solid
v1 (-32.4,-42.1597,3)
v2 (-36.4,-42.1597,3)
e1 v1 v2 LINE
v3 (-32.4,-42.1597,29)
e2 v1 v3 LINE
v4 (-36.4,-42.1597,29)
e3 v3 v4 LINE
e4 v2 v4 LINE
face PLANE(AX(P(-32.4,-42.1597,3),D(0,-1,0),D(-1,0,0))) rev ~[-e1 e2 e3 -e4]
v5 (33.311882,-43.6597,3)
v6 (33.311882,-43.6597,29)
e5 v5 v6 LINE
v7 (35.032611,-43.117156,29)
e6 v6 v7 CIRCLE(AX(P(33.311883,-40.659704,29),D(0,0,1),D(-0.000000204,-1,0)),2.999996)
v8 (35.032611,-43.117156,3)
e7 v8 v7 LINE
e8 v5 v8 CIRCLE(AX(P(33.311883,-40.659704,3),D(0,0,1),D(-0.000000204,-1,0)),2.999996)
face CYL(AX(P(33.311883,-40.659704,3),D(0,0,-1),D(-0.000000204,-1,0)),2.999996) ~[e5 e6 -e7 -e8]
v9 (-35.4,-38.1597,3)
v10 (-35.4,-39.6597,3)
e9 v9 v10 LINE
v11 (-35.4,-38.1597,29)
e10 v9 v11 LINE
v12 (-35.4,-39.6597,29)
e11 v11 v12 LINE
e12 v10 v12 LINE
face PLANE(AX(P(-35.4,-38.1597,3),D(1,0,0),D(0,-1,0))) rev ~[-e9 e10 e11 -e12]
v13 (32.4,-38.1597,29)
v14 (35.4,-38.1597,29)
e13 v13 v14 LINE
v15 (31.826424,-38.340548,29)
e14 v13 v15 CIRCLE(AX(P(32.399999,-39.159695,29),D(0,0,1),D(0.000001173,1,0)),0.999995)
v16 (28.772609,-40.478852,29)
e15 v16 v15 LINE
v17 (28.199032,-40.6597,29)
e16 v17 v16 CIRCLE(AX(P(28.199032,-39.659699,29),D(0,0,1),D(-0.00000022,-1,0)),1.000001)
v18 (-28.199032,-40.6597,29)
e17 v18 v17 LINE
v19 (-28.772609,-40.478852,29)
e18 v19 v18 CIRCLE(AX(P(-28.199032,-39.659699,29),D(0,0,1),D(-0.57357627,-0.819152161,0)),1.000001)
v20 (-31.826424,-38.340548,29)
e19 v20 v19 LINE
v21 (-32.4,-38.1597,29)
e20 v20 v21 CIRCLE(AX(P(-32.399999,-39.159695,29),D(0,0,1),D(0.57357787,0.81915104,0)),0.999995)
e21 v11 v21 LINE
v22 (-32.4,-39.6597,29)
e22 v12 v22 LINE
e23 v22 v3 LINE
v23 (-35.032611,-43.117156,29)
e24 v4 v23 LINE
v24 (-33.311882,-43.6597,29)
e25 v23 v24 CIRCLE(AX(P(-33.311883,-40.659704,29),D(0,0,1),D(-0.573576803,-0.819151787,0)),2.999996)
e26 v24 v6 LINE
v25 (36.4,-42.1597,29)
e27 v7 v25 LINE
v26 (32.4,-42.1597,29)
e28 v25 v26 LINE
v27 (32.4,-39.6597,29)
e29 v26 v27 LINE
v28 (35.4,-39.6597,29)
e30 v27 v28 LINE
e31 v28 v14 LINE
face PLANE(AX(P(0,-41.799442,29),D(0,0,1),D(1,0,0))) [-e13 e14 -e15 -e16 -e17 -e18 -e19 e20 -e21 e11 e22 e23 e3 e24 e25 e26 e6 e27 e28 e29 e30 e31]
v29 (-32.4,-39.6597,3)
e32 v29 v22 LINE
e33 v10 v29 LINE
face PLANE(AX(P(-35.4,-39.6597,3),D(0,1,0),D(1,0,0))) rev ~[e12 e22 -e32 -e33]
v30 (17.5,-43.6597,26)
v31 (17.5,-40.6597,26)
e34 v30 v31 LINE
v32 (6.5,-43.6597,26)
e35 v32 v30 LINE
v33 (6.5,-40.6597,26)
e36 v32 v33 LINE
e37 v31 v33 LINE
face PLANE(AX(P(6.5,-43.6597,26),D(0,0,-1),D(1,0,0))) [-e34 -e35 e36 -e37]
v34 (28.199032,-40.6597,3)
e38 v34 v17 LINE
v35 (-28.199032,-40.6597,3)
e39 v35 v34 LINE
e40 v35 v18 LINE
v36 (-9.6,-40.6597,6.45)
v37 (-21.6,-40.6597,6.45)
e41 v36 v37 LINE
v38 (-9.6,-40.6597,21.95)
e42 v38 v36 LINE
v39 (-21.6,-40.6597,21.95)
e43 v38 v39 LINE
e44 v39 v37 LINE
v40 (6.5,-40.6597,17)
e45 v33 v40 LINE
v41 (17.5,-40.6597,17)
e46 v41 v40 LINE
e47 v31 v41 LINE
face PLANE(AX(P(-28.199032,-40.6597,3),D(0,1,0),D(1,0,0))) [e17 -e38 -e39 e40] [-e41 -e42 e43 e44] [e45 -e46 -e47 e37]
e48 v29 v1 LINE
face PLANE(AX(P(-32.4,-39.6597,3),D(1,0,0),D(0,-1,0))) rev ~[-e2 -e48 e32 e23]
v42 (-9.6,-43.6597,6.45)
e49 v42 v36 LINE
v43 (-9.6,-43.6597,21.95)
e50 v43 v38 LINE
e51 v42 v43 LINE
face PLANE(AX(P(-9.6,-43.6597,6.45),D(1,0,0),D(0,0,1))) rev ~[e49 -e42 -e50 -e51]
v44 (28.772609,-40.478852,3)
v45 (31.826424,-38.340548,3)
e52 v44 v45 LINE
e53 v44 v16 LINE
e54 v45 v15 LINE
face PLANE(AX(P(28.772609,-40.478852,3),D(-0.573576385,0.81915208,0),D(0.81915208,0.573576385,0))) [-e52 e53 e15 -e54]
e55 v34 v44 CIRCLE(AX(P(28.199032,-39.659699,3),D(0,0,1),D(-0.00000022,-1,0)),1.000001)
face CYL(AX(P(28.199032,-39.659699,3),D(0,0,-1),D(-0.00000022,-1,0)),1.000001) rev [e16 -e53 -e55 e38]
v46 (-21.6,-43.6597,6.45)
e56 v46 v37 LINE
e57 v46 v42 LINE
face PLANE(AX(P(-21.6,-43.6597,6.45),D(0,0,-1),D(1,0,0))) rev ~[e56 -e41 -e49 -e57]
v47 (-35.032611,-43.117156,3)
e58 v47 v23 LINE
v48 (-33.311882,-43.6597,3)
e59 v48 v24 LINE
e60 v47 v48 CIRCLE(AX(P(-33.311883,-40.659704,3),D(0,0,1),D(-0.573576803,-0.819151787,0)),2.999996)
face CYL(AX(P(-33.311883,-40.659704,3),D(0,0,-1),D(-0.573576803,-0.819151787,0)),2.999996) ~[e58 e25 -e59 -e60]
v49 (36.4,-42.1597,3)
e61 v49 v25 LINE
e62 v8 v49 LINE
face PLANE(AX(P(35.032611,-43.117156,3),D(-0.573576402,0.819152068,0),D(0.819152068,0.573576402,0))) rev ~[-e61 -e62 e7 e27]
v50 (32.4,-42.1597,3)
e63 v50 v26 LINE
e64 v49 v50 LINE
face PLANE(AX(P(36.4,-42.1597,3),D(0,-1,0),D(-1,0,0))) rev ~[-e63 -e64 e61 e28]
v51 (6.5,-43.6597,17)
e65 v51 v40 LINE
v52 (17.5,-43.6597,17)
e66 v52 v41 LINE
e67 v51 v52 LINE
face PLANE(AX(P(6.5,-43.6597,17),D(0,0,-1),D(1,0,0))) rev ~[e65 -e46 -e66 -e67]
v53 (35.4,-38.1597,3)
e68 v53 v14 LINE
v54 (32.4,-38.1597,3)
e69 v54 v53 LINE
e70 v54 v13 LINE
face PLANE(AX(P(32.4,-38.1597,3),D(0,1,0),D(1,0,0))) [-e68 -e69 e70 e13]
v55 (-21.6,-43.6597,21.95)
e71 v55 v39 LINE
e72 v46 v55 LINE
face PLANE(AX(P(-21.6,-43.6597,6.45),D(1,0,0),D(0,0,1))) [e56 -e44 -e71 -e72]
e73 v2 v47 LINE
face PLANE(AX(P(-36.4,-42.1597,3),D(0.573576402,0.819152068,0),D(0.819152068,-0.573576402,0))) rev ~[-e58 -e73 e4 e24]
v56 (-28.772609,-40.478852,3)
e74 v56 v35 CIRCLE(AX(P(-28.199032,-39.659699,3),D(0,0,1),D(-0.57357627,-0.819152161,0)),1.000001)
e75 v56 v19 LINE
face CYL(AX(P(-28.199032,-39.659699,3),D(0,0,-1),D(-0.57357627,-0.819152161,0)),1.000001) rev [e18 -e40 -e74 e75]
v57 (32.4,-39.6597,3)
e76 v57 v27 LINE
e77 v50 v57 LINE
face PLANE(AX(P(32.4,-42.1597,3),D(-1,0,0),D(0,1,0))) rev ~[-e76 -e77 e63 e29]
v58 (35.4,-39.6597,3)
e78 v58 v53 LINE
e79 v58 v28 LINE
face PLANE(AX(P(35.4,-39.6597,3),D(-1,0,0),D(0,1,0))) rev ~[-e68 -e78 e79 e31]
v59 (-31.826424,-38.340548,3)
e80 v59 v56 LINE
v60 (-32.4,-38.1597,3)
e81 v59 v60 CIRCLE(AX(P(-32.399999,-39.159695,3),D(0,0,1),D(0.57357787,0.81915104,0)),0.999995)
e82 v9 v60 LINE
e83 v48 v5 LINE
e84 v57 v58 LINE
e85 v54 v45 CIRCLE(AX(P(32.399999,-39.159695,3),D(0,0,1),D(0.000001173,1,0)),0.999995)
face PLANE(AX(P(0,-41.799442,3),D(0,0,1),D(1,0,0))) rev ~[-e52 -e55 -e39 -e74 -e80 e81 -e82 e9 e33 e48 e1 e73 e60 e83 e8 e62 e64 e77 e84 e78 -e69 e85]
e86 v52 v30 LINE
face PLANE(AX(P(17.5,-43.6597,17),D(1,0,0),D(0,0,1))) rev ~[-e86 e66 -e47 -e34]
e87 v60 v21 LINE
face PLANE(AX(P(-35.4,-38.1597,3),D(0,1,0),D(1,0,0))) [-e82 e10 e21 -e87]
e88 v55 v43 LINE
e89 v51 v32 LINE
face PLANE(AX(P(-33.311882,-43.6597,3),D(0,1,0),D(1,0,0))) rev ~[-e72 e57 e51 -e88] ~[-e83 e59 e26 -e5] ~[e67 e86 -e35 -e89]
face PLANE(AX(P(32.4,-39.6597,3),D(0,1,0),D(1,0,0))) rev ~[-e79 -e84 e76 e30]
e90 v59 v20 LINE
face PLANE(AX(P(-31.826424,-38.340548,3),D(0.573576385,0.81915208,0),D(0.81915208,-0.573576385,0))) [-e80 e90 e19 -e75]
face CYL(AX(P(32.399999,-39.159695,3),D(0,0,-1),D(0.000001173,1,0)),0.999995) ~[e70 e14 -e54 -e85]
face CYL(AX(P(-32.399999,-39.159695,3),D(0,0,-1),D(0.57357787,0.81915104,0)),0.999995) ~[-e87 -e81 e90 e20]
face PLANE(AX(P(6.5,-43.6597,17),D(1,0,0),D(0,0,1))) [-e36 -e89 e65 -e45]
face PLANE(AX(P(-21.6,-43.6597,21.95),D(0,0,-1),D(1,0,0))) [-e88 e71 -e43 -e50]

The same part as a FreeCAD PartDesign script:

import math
import FreeCAD as App
import Part
import Sketcher
Q = App.Units.Quantity

doc = App.newDocument("Part")
body = doc.addObject("PartDesign::Body", "Body")

sketch1 = doc.addObject("Sketcher::SketchObject", "Sketch")
body.addObject(sketch1)
sketch1.AttachmentSupport = (doc.XY_Plane, [""])
sketch1.MapMode = "FlatFace"
sketch1.AttachmentOffset = App.Placement(App.Vector(0, 0, 3), App.Rotation())
sketch1.addGeometry([
    Part.LineSegment(App.Vector(-35.4, -39.7, 0), App.Vector(-32.4, -39.7, 0)),
    Part.LineSegment(App.Vector(-32.4, -39.7, 0), App.Vector(-32.4, -42.2, 0)),
    Part.LineSegment(App.Vector(-32.4, -42.2, 0), App.Vector(-36.4, -42.2, 0)),
    Part.LineSegment(App.Vector(-36.4, -42.2, 0), App.Vector(-35, -43.1, 0)),
    Part.ArcOfCircle(Part.Circle(App.Vector(-33.3, -40.7, 0), App.Vector(0, 0, 1), 3), math.radians(-125), math.radians(-90)),
    Part.LineSegment(App.Vector(-33.3, -43.7, 0), App.Vector(33.3, -43.7, 0)),
    Part.ArcOfCircle(Part.Circle(App.Vector(33.3, -40.7, 0), App.Vector(0, 0, 1), 3), math.radians(-90), math.radians(-55)),
    Part.LineSegment(App.Vector(35, -43.1, 0), App.Vector(36.4, -42.2, 0)),
    Part.LineSegment(App.Vector(36.4, -42.2, 0), App.Vector(32.4, -42.2, 0)),
    Part.LineSegment(App.Vector(32.4, -42.2, 0), App.Vector(32.4, -39.7, 0)),
    Part.LineSegment(App.Vector(32.4, -39.7, 0), App.Vector(35.4, -39.7, 0)),
    Part.LineSegment(App.Vector(35.4, -39.7, 0), App.Vector(35.4, -38.2, 0)),
    Part.LineSegment(App.Vector(35.4, -38.2, 0), App.Vector(32.4, -38.2, 0)),
    Part.ArcOfCircle(Part.Circle(App.Vector(32.4, -39.2, 0), App.Vector(0, 0, 1), 1), math.radians(90), math.radians(125)),
    Part.LineSegment(App.Vector(31.8, -38.3, 0), App.Vector(28.8, -40.5, 0)),
    Part.ArcOfCircle(Part.Circle(App.Vector(28.2, -39.7, 0), App.Vector(0, 0, 1), 1), math.radians(-90), math.radians(-55)),
    Part.LineSegment(App.Vector(28.2, -40.7, 0), App.Vector(-28.2, -40.7, 0)),
    Part.ArcOfCircle(Part.Circle(App.Vector(-28.2, -39.7, 0), App.Vector(0, 0, 1), 1), math.radians(-125), math.radians(-90)),
    Part.LineSegment(App.Vector(-28.8, -40.5, 0), App.Vector(-31.8, -38.3, 0)),
    Part.ArcOfCircle(Part.Circle(App.Vector(-32.4, -39.2, 0), App.Vector(0, 0, 1), 1), math.radians(55), math.radians(90)),
    Part.LineSegment(App.Vector(-32.4, -38.2, 0), App.Vector(-35.4, -38.2, 0)),
    Part.LineSegment(App.Vector(-35.4, -38.2, 0), App.Vector(-35.4, -39.7, 0)),
], False)
sketch1.addConstraint([
    Sketcher.Constraint("Coincident", 0, 2, 1, 1),
    Sketcher.Constraint("Coincident", 1, 2, 2, 1),
    Sketcher.Constraint("Coincident", 2, 2, 3, 1),
    Sketcher.Constraint("Tangent", 3, 2, 4, 1),
    Sketcher.Constraint("Tangent", 4, 2, 5, 1),
    Sketcher.Constraint("Tangent", 5, 2, 6, 1),
    Sketcher.Constraint("Tangent", 6, 2, 7, 1),
    Sketcher.Constraint("Coincident", 7, 2, 8, 1),
    Sketcher.Constraint("Coincident", 8, 2, 9, 1),
    Sketcher.Constraint("Coincident", 9, 2, 10, 1),
    Sketcher.Constraint("Coincident", 10, 2, 11, 1),
    Sketcher.Constraint("Coincident", 11, 2, 12, 1),
    Sketcher.Constraint("Tangent", 12, 2, 13, 1),
    Sketcher.Constraint("Tangent", 13, 2, 14, 1),
    Sketcher.Constraint("Tangent", 14, 2, 15, 2),
    Sketcher.Constraint("Tangent", 15, 1, 16, 1),
    Sketcher.Constraint("Tangent", 16, 2, 17, 2),
    Sketcher.Constraint("Tangent", 17, 1, 18, 1),
    Sketcher.Constraint("Tangent", 18, 2, 19, 1),
    Sketcher.Constraint("Tangent", 19, 2, 20, 1),
    Sketcher.Constraint("Coincident", 20, 2, 21, 1),
    Sketcher.Constraint("Coincident", 21, 2, 0, 1),
    Sketcher.Constraint("Horizontal", 0),
    Sketcher.Constraint("Vertical", 1),
    Sketcher.Constraint("Horizontal", 2),
    Sketcher.Constraint("Horizontal", 5),
    Sketcher.Constraint("Horizontal", 8),
    Sketcher.Constraint("Vertical", 9),
    Sketcher.Constraint("Horizontal", 10),
    Sketcher.Constraint("Vertical", 11),
    Sketcher.Constraint("Horizontal", 12),
    Sketcher.Constraint("Horizontal", 16),
    Sketcher.Constraint("Horizontal", 20),
    Sketcher.Constraint("Vertical", 21),
    Sketcher.Constraint("Equal", 4, 6),
    Sketcher.Constraint("Equal", 15, 17),
    Sketcher.Constraint("Equal", 13, 19),
    Sketcher.Constraint("Symmetric", 13, 3, 19, 3, -2),
    Sketcher.Constraint("Symmetric", 3, 2, 6, 2, -2),
    Sketcher.Constraint("Symmetric", 1, 2, 8, 2, -2),
    Sketcher.Constraint("Symmetric", 10, 2, 21, 2, -2),
    Sketcher.Constraint("Parallel", 7, 14),
    Sketcher.Constraint("Parallel", 3, 18),
    Sketcher.Constraint("Horizontal", 17, 3, 0, 2),
    Sketcher.Constraint("Vertical", 19, 3, 0, 2),
    Sketcher.Constraint("Radius", 15, Q("1.000001 mm")),
    Sketcher.Constraint("DistanceX", 0, 1, 0, 2, Q("3 mm")),
    Sketcher.Constraint("DistanceX", 2, 2, 2, 1, Q("4 mm")),
    Sketcher.Constraint("Angle", 3, Q("-34.999998 deg")),
    Sketcher.Constraint("DistanceY", 1, 2, 1, 1, Q("2.5 mm")),
    Sketcher.Constraint("DistanceY", 11, 1, 11, 2, Q("1.5 mm")),
    Sketcher.Constraint("DistanceY", 4, 2, 0, 2, Q("4 mm")),
    Sketcher.Constraint("DistanceX", -1, 1, 13, 3, Q("32.399999 mm")),
    Sketcher.Constraint("Radius", 4, Q("2.999996 mm")),
    Sketcher.Constraint("Radius", 13, Q("0.999995 mm")),
    Sketcher.Constraint("DistanceY", 15, 3, -1, 1, Q("39.659699 mm")),
])
pad1 = doc.addObject("PartDesign::Pad", "Pad")
body.addObject(pad1)
pad1.Profile = sketch1
pad1.Length = 26

sketch2 = doc.addObject("Sketcher::SketchObject", "Sketch001")
body.addObject(sketch2)
sketch2.AttachmentSupport = (doc.XZ_Plane, [""])
sketch2.MapMode = "FlatFace"
sketch2.AttachmentOffset = App.Placement(App.Vector(0, 0, 43.6597), App.Rotation())
sketch2.addGeometry([
    Part.LineSegment(App.Vector(-22, 22, 0), App.Vector(-22, 6, 0)),
    Part.LineSegment(App.Vector(-22, 6, 0), App.Vector(-10, 6, 0)),
    Part.LineSegment(App.Vector(-10, 6, 0), App.Vector(-10, 22, 0)),
    Part.LineSegment(App.Vector(-10, 22, 0), App.Vector(-22, 22, 0)),
    Part.LineSegment(App.Vector(6, 26, 0), App.Vector(6, 17, 0)),
    Part.LineSegment(App.Vector(6, 17, 0), App.Vector(18, 17, 0)),
    Part.LineSegment(App.Vector(18, 17, 0), App.Vector(18, 26, 0)),
    Part.LineSegment(App.Vector(18, 26, 0), App.Vector(6, 26, 0)),
], False)
sketch2.addConstraint([
    Sketcher.Constraint("Coincident", 0, 2, 1, 1),
    Sketcher.Constraint("Coincident", 1, 2, 2, 1),
    Sketcher.Constraint("Coincident", 2, 2, 3, 1),
    Sketcher.Constraint("Coincident", 3, 2, 0, 1),
    Sketcher.Constraint("Coincident", 4, 2, 5, 1),
    Sketcher.Constraint("Coincident", 5, 2, 6, 1),
    Sketcher.Constraint("Coincident", 6, 2, 7, 1),
    Sketcher.Constraint("Coincident", 7, 2, 4, 1),
    Sketcher.Constraint("Vertical", 0),
    Sketcher.Constraint("Horizontal", 1),
    Sketcher.Constraint("Vertical", 2),
    Sketcher.Constraint("Horizontal", 3),
    Sketcher.Constraint("Vertical", 4),
    Sketcher.Constraint("Horizontal", 5),
    Sketcher.Constraint("Vertical", 6),
    Sketcher.Constraint("Horizontal", 7),
    Sketcher.Constraint("DistanceX", 1, 1, 1, 2, Q("12 mm")),
    Sketcher.Constraint("DistanceX", 5, 1, 5, 2, Q("11 mm")),
    Sketcher.Constraint("DistanceY", 4, 2, 4, 1, Q("9 mm")),
    Sketcher.Constraint("DistanceY", 0, 2, 0, 1, Q("15.5 mm")),
    Sketcher.Constraint("DistanceY", -1, 1, 4, 2, Q("17 mm")),
    Sketcher.Constraint("DistanceX", 0, 2, -1, 1, Q("21.6 mm")),
    Sketcher.Constraint("DistanceX", -1, 1, 4, 2, Q("6.5 mm")),
    Sketcher.Constraint("DistanceY", -1, 1, 0, 2, Q("6.45 mm")),
])
pocket1 = doc.addObject("PartDesign::Pocket", "Pocket")
body.addObject(pocket1)
pocket1.Profile = sketch2
pocket1.Length = 5

doc.recompute()
